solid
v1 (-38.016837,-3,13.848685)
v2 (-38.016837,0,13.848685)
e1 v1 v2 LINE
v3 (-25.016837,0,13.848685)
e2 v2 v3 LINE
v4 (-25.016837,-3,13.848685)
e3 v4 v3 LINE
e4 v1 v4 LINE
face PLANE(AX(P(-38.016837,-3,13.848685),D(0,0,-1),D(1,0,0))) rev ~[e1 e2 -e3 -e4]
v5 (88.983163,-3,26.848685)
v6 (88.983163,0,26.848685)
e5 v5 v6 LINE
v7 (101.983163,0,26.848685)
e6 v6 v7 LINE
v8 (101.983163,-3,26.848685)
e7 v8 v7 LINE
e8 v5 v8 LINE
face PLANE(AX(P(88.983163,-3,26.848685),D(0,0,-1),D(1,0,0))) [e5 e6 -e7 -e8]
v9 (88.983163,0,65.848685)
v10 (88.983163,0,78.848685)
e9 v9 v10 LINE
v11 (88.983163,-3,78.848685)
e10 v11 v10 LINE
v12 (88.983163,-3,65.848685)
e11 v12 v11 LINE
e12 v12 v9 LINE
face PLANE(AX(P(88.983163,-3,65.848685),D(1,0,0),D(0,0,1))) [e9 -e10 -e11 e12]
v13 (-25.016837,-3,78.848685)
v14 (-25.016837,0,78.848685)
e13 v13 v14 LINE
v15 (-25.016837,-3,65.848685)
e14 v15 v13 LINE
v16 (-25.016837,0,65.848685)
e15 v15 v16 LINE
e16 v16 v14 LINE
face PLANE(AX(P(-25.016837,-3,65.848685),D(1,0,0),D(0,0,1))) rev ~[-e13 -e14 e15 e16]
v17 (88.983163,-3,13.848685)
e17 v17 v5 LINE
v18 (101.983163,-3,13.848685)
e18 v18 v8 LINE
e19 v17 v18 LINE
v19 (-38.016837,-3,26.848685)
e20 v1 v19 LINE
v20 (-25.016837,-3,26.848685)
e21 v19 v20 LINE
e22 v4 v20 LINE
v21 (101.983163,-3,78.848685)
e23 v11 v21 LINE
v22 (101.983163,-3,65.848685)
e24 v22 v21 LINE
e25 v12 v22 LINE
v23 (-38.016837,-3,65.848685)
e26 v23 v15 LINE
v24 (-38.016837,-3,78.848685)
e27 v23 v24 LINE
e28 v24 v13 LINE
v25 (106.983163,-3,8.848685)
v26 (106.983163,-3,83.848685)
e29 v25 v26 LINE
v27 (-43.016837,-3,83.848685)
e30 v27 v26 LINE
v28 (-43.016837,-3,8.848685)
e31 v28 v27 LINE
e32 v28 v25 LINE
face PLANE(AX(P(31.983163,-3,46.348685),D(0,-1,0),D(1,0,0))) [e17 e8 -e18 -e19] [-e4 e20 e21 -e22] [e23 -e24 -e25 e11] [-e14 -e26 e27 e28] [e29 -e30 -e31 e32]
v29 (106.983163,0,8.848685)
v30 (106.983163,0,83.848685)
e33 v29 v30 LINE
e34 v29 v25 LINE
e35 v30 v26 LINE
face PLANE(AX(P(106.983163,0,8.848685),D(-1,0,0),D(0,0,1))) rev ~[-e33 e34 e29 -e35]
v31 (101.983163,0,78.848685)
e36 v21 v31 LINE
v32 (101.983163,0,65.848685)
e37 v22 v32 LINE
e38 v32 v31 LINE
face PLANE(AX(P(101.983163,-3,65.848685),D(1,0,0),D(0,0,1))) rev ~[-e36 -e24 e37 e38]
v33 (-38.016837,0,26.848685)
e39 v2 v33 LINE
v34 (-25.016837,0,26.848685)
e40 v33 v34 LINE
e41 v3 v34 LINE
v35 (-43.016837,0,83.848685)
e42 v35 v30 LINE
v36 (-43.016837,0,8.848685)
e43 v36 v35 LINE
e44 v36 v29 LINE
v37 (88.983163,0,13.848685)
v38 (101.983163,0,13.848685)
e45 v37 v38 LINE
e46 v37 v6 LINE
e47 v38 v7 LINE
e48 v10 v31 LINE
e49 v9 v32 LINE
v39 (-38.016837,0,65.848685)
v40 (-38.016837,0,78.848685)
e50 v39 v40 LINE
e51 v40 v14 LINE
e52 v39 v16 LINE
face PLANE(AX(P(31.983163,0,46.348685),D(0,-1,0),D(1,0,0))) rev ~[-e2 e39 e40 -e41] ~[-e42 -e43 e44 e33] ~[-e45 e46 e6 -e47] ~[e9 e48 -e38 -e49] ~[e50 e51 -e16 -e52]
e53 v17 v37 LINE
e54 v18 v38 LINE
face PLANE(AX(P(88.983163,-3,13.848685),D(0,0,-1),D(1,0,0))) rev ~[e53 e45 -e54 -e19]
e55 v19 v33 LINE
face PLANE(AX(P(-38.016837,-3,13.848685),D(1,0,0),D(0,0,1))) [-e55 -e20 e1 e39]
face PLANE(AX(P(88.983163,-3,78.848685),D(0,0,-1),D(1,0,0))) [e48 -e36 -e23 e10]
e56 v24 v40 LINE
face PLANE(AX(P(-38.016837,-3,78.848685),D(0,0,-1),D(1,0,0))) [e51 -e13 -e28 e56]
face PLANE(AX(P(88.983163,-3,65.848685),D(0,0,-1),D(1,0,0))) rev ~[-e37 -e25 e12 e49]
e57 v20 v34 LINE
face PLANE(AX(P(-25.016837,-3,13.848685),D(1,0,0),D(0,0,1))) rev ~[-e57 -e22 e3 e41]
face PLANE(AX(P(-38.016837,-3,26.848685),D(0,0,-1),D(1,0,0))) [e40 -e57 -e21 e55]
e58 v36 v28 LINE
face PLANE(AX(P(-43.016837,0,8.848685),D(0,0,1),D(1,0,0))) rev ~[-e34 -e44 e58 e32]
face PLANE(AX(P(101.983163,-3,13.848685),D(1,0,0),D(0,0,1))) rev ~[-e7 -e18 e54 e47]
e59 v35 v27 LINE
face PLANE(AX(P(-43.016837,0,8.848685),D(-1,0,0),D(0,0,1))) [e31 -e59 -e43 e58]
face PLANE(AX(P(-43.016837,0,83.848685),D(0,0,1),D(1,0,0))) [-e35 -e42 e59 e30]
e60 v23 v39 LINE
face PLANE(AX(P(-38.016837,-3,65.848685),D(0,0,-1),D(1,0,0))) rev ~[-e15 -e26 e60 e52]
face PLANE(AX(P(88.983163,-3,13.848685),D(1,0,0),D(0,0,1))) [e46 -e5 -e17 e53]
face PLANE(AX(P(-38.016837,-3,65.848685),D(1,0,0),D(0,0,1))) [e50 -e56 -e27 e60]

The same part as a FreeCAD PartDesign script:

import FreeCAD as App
import Part
import Sketcher

V = App.Vector

doc = App.newDocument("Part")
body = doc.addObject("PartDesign::Body", "Body")

# Sketch on XZ plane
sketch1 = body.newObject("Sketcher::SketchObject", "Sketch")
sketch1.AttachmentSupport = (doc.getObject("XZ_Plane"), [""])
sketch1.MapMode = "FlatFace"
sketch1.addGeometry([
    Part.LineSegment(V(-43.016837, 83.848685, 0), V(-43.016837, 8.848685, 0)),
    Part.LineSegment(V(-43.016837, 8.848685, 0), V(106.983163, 8.848685, 0)),
    Part.LineSegment(V(106.983163, 8.848685, 0), V(106.983163, 83.848685, 0)),
    Part.LineSegment(V(106.983163, 83.848685, 0), V(-43.016837, 83.848685, 0)),
], False)
sketch1.addConstraint([
    Sketcher.Constraint("Coincident", 0, 2, 1, 1),
    Sketcher.Constraint("Coincident", 1, 2, 2, 1),
    Sketcher.Constraint("Coincident", 2, 2, 3, 1),
    Sketcher.Constraint("Coincident", 3, 2, 0, 1),
    Sketcher.Constraint("Vertical", 0),
    Sketcher.Constraint("Horizontal", 1),
    Sketcher.Constraint("Vertical", 2),
    Sketcher.Constraint("Horizontal", 3),
    Sketcher.Constraint("DistanceX", 1, 1, 1, 2, 150.0),
    Sketcher.Constraint("DistanceY", 0, 2, 0, 1, 75.0),
    Sketcher.Constraint("DistanceX", 0, 2, -1, 1, 43.016837),
    Sketcher.Constraint("DistanceY", -1, 1, 0, 2, 8.848685),
])
pad1 = body.newObject("PartDesign::Pad", "Pad")
pad1.Profile = sketch1
pad1.Length = 3

# Sketch on XZ plane
sketch2 = body.newObject("Sketcher::SketchObject", "Sketch001")
sketch2.AttachmentSupport = (doc.getObject("XZ_Plane"), [""])
sketch2.MapMode = "FlatFace"
sketch2.AttachmentOffset = App.Placement(V(0, 0, 3), App.Rotation())
sketch2.addGeometry([
    Part.LineSegment(V(-38.016837, 78.848685, 0), V(-38.016837, 65.848685, 0)),  # 0
    Part.LineSegment(V(-38.016837, 65.848685, 0), V(-25.016837, 65.848685, 0)),  # 1
    Part.LineSegment(V(-25.016837, 65.848685, 0), V(-25.016837, 78.848685, 0)),  # 2
    Part.LineSegment(V(-25.016837, 78.848685, 0), V(-38.016837, 78.848685, 0)),  # 3
    Part.LineSegment(V(-38.016837, 26.848685, 0), V(-38.016837, 13.848685, 0)),  # 4
    Part.LineSegment(V(-38.016837, 13.848685, 0), V(-25.016837, 13.848685, 0)),  # 5
    Part.LineSegment(V(-25.016837, 13.848685, 0), V(-25.016837, 26.848685, 0)),  # 6
    Part.LineSegment(V(-25.016837, 26.848685, 0), V(-38.016837, 26.848685, 0)),  # 7
    Part.LineSegment(V(88.983163, 26.848685, 0), V(88.983163, 13.848685, 0)),  # 8
    Part.LineSegment(V(88.983163, 13.848685, 0), V(101.983163, 13.848685, 0)),  # 9
    Part.LineSegment(V(101.983163, 13.848685, 0), V(101.983163, 26.848685, 0)),  # 10
    Part.LineSegment(V(101.983163, 26.848685, 0), V(88.983163, 26.848685, 0)),  # 11
    Part.LineSegment(V(88.983163, 78.848685, 0), V(88.983163, 65.848685, 0)),  # 12
    Part.LineSegment(V(88.983163, 65.848685, 0), V(101.983163, 65.848685, 0)),  # 13
    Part.LineSegment(V(101.983163, 65.848685, 0), V(101.983163, 78.848685, 0)),  # 14
    Part.LineSegment(V(101.983163, 78.848685, 0), V(88.983163, 78.848685, 0)),  # 15
], False)
sketch2.addConstraint([
    Sketcher.Constraint("Coincident", 0, 2, 1, 1),
    Sketcher.Constraint("Coincident", 1, 2, 2, 1),
    Sketcher.Constraint("Coincident", 2, 2, 3, 1),
    Sketcher.Constraint("Coincident", 3, 2, 0, 1),
    Sketcher.Constraint("Coincident", 4, 2, 5, 1),
    Sketcher.Constraint("Coincident", 5, 2, 6, 1),
    Sketcher.Constraint("Coincident", 6, 2, 7, 1),
    Sketcher.Constraint("Coincident", 7, 2, 4, 1),
    Sketcher.Constraint("Coincident", 8, 2, 9, 1),
    Sketcher.Constraint("Coincident", 9, 2, 10, 1),
    Sketcher.Constraint("Coincident", 10, 2, 11, 1),
    Sketcher.Constraint("Coincident", 11, 2, 8, 1),
    Sketcher.Constraint("Coincident", 12, 2, 13, 1),
    Sketcher.Constraint("Coincident", 13, 2, 14, 1),
    Sketcher.Constraint("Coincident", 14, 2, 15, 1),
    Sketcher.Constraint("Coincident", 15, 2, 12, 1),
    Sketcher.Constraint("Vertical", 0),
    Sketcher.Constraint("Horizontal", 1),
    Sketcher.Constraint("Vertical", 2),
    Sketcher.Constraint("Horizontal", 3),
    Sketcher.Constraint("Vertical", 4),
    Sketcher.Constraint("Horizontal", 5),
    Sketcher.Constraint("Vertical", 6),
    Sketcher.Constraint("Horizontal", 7),
    Sketcher.Constraint("Vertical", 8),
    Sketcher.Constraint("Horizontal", 9),
    Sketcher.Constraint("Vertical", 10),
    Sketcher.Constraint("Horizontal", 11),
    Sketcher.Constraint("Vertical", 12),
    Sketcher.Constraint("Horizontal", 13),
    Sketcher.Constraint("Vertical", 14),
    Sketcher.Constraint("Horizontal", 15),
    Sketcher.Constraint("Horizontal", 5, 2, 8, 2),
    Sketcher.Constraint("Horizontal", 7, 2, 10, 2),
    Sketcher.Constraint("Horizontal", 1, 2, 12, 2),
    Sketcher.Constraint("Horizontal", 3, 2, 14, 2),
    Sketcher.Constraint("Vertical", 3, 2, 4, 2),
    Sketcher.Constraint("Vertical", 2, 2, 5, 2),
    Sketcher.Constraint("Vertical", 11, 2, 12, 2),
    Sketcher.Constraint("Vertical", 10, 2, 13, 2),
    Sketcher.Constraint("Equal", 7, 9),
    Sketcher.Constraint("Equal", 15, 0),
    Sketcher.Constraint("Equal", 2, 4),
    Sketcher.Constraint("DistanceX", 1, 1, 1, 2, 13.0),
    Sketcher.Constraint("DistanceY", 4, 2, 0, 2, 52.0),
    Sketcher.Constraint("DistanceX", 5, 2, 8, 2, 114.0),
    Sketcher.Constraint("DistanceX", 0, 2, -1, 1, 38.016837),
    Sketcher.Constraint("DistanceY", -1, 1, 0, 2, 65.848685),
])
pocket1 = body.newObject("PartDesign::Pocket", "Pocket")
pocket1.Profile = sketch2
pocket1.Length = 4

doc.recompute()
